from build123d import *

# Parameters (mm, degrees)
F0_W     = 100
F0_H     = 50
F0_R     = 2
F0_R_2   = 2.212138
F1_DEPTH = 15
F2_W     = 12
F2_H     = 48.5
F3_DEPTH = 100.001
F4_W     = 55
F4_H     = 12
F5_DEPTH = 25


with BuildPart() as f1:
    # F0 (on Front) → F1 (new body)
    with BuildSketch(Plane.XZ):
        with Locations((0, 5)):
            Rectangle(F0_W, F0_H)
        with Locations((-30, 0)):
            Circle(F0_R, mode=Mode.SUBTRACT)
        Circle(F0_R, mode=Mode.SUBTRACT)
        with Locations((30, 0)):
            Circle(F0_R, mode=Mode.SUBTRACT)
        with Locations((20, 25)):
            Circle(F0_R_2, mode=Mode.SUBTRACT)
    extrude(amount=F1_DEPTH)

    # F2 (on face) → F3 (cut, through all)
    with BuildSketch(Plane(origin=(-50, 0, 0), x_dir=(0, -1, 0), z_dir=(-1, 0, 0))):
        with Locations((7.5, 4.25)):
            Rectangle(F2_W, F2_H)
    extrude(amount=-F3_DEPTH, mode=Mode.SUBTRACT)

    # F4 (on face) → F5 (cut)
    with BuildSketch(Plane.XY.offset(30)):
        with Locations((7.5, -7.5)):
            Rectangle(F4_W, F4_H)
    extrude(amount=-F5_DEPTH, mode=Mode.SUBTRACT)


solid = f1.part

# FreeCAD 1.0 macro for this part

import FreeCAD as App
import Part
import Sketcher

V = App.Vector
Q = App.Units.Quantity

doc = App.newDocument("Part")
body = doc.addObject("PartDesign::Body", "Body")

# Sketch on XZ plane
sketch1 = body.newObject("Sketcher::SketchObject", "Sketch")
sketch1.AttachmentSupport = (doc.getObject("XZ_Plane"), [""])
sketch1.MapMode = "FlatFace"
sketch1.addGeometry([
    Part.LineSegment(V(-50, 30, 0), V(-50, -20, 0)),  # 0
    Part.LineSegment(V(-50, -20, 0), V(50, -20, 0)),  # 1
    Part.LineSegment(V(50, -20, 0), V(50, 30, 0)),  # 2
    Part.LineSegment(V(50, 30, 0), V(-50, 30, 0)),  # 3
    Part.Circle(V(-30, 0, 0), V(0, 0, 1), 2),  # 4
    Part.Circle(V(0, 0, 0), V(0, 0, 1), 2),  # 5
    Part.Circle(V(30, 0, 0), V(0, 0, 1), 2),  # 6
    Part.Circle(V(20, 25, 0), V(0, 0, 1), 2.2),  # 7
], False)
sketch1.addConstraint([
    Sketcher.Constraint("Coincident", 0, 2, 1, 1),
    Sketcher.Constraint("Coincident", 1, 2, 2, 1),
    Sketcher.Constraint("Coincident", 2, 2, 3, 1),
    Sketcher.Constraint("Coincident", 3, 2, 0, 1),
    Sketcher.Constraint("Vertical", 0),
    Sketcher.Constraint("Horizontal", 1),
    Sketcher.Constraint("Vertical", 2),
    Sketcher.Constraint("Horizontal", 3),
    Sketcher.Constraint("Coincident", 5, 3, -1, 1),
    Sketcher.Constraint("Equal", 4, 5),
    Sketcher.Constraint("Equal", 5, 6),
    Sketcher.Constraint("Symmetric", 4, 3, 6, 3, -1, 1),
    Sketcher.Constraint("PointOnObject", 4, 3, -1),
    Sketcher.Constraint("Diameter", 4, Q("4 mm")),
    Sketcher.Constraint("DistanceX", 1, 1, 1, 2, Q("100 mm")),
    Sketcher.Constraint("DistanceY", 0, 2, 0, 1, Q("50 mm")),
    Sketcher.Constraint("DistanceX", 4, 3, -1, 1, Q("30 mm")),
    Sketcher.Constraint("DistanceX", -1, 1, 7, 3, Q("20 mm")),
    Sketcher.Constraint("DistanceY", -1, 1, 7, 3, Q("25 mm")),
    Sketcher.Constraint("DistanceX", 0, 2, -1, 1, Q("50 mm")),
    Sketcher.Constraint("DistanceY", 0, 2, -1, 1, Q("20 mm")),
    Sketcher.Constraint("Diameter", 7, Q("4.424276 mm")),
])
pad1 = body.newObject("PartDesign::Pad", "Pad")
pad1.Profile = sketch1
pad1.Length = 15

# Sketch on YZ plane
sketch2 = body.newObject("Sketcher::SketchObject", "Sketch001")
sketch2.AttachmentSupport = (doc.getObject("YZ_Plane"), [""])
sketch2.MapMode = "FlatFace"
sketch2.AttachmentOffset = App.Placement(V(0, 0, -50), App.Rotation())
sketch2.addGeometry([
    Part.LineSegment(V(-2, 28, 0), V(-2, -20, 0)),
    Part.LineSegment(V(-2, -20, 0), V(-14, -20, 0)),
    Part.LineSegment(V(-14, -20, 0), V(-14, 28, 0)),
    Part.LineSegment(V(-14, 28, 0), V(-2, 28, 0)),
], False)
sketch2.addConstraint([
    Sketcher.Constraint("Coincident", 0, 2, 1, 1),
    Sketcher.Constraint("Coincident", 1, 2, 2, 1),
    Sketcher.Constraint("Coincident", 2, 2, 3, 1),
    Sketcher.Constraint("Coincident", 3, 2, 0, 1),
    Sketcher.Constraint("Vertical", 0),
    Sketcher.Constraint("Horizontal", 1),
    Sketcher.Constraint("Vertical", 2),
    Sketcher.Constraint("Horizontal", 3),
    Sketcher.Constraint("DistanceX", 1, 2, 1, 1, Q("12 mm")),
    Sketcher.Constraint("DistanceY", 0, 2, 0, 1, Q("48.5 mm")),
    Sketcher.Constraint("DistanceY", 0, 2, -1, 1, Q("20 mm")),
    Sketcher.Constraint("DistanceX", 0, 2, -1, 1, Q("1.5 mm")),
])
pocket1 = body.newObject("PartDesign::Pocket", "Pocket")
pocket1.Profile = sketch2
pocket1.Type = "ThroughAll"
pocket1.Reversed = True

# Sketch on XY plane
sketch3 = body.newObject("Sketcher::SketchObject", "Sketch002")
sketch3.AttachmentSupport = (doc.getObject("XY_Plane"), [""])
sketch3.MapMode = "FlatFace"
sketch3.AttachmentOffset = App.Placement(V(0, 0, 30), App.Rotation())
sketch3.addGeometry([
    Part.LineSegment(V(-20, -2, 0), V(-20, -14, 0)),
    Part.LineSegment(V(-20, -14, 0), V(35, -14, 0)),
    Part.LineSegment(V(35, -14, 0), V(35, -2, 0)),
    Part.LineSegment(V(35, -2, 0), V(-20, -2, 0)),
], False)
sketch3.addConstraint([
    Sketcher.Constraint("Coincident", 0, 2, 1, 1),
    Sketcher.Constraint("Coincident", 1, 2, 2, 1),
    Sketcher.Constraint("Coincident", 2, 2, 3, 1),
    Sketcher.Constraint("Coincident", 3, 2, 0, 1),
    Sketcher.Constraint("Vertical", 0),
    Sketcher.Constraint("Horizontal", 1),
    Sketcher.Constraint("Vertical", 2),
    Sketcher.Constraint("Horizontal", 3),
    Sketcher.Constraint("DistanceX", 1, 1, 1, 2, Q("55 mm")),
    Sketcher.Constraint("DistanceY", 0, 2, 0, 1, Q("12 mm")),
    Sketcher.Constraint("DistanceX", 0, 2, -1, 1, Q("20 mm")),
    Sketcher.Constraint("DistanceY", 0, 2, -1, 1, Q("13.5 mm")),
])
pocket2 = body.newObject("PartDesign::Pocket", "Pocket001")
pocket2.Profile = sketch3
pocket2.Length = 25

doc.recompute()
